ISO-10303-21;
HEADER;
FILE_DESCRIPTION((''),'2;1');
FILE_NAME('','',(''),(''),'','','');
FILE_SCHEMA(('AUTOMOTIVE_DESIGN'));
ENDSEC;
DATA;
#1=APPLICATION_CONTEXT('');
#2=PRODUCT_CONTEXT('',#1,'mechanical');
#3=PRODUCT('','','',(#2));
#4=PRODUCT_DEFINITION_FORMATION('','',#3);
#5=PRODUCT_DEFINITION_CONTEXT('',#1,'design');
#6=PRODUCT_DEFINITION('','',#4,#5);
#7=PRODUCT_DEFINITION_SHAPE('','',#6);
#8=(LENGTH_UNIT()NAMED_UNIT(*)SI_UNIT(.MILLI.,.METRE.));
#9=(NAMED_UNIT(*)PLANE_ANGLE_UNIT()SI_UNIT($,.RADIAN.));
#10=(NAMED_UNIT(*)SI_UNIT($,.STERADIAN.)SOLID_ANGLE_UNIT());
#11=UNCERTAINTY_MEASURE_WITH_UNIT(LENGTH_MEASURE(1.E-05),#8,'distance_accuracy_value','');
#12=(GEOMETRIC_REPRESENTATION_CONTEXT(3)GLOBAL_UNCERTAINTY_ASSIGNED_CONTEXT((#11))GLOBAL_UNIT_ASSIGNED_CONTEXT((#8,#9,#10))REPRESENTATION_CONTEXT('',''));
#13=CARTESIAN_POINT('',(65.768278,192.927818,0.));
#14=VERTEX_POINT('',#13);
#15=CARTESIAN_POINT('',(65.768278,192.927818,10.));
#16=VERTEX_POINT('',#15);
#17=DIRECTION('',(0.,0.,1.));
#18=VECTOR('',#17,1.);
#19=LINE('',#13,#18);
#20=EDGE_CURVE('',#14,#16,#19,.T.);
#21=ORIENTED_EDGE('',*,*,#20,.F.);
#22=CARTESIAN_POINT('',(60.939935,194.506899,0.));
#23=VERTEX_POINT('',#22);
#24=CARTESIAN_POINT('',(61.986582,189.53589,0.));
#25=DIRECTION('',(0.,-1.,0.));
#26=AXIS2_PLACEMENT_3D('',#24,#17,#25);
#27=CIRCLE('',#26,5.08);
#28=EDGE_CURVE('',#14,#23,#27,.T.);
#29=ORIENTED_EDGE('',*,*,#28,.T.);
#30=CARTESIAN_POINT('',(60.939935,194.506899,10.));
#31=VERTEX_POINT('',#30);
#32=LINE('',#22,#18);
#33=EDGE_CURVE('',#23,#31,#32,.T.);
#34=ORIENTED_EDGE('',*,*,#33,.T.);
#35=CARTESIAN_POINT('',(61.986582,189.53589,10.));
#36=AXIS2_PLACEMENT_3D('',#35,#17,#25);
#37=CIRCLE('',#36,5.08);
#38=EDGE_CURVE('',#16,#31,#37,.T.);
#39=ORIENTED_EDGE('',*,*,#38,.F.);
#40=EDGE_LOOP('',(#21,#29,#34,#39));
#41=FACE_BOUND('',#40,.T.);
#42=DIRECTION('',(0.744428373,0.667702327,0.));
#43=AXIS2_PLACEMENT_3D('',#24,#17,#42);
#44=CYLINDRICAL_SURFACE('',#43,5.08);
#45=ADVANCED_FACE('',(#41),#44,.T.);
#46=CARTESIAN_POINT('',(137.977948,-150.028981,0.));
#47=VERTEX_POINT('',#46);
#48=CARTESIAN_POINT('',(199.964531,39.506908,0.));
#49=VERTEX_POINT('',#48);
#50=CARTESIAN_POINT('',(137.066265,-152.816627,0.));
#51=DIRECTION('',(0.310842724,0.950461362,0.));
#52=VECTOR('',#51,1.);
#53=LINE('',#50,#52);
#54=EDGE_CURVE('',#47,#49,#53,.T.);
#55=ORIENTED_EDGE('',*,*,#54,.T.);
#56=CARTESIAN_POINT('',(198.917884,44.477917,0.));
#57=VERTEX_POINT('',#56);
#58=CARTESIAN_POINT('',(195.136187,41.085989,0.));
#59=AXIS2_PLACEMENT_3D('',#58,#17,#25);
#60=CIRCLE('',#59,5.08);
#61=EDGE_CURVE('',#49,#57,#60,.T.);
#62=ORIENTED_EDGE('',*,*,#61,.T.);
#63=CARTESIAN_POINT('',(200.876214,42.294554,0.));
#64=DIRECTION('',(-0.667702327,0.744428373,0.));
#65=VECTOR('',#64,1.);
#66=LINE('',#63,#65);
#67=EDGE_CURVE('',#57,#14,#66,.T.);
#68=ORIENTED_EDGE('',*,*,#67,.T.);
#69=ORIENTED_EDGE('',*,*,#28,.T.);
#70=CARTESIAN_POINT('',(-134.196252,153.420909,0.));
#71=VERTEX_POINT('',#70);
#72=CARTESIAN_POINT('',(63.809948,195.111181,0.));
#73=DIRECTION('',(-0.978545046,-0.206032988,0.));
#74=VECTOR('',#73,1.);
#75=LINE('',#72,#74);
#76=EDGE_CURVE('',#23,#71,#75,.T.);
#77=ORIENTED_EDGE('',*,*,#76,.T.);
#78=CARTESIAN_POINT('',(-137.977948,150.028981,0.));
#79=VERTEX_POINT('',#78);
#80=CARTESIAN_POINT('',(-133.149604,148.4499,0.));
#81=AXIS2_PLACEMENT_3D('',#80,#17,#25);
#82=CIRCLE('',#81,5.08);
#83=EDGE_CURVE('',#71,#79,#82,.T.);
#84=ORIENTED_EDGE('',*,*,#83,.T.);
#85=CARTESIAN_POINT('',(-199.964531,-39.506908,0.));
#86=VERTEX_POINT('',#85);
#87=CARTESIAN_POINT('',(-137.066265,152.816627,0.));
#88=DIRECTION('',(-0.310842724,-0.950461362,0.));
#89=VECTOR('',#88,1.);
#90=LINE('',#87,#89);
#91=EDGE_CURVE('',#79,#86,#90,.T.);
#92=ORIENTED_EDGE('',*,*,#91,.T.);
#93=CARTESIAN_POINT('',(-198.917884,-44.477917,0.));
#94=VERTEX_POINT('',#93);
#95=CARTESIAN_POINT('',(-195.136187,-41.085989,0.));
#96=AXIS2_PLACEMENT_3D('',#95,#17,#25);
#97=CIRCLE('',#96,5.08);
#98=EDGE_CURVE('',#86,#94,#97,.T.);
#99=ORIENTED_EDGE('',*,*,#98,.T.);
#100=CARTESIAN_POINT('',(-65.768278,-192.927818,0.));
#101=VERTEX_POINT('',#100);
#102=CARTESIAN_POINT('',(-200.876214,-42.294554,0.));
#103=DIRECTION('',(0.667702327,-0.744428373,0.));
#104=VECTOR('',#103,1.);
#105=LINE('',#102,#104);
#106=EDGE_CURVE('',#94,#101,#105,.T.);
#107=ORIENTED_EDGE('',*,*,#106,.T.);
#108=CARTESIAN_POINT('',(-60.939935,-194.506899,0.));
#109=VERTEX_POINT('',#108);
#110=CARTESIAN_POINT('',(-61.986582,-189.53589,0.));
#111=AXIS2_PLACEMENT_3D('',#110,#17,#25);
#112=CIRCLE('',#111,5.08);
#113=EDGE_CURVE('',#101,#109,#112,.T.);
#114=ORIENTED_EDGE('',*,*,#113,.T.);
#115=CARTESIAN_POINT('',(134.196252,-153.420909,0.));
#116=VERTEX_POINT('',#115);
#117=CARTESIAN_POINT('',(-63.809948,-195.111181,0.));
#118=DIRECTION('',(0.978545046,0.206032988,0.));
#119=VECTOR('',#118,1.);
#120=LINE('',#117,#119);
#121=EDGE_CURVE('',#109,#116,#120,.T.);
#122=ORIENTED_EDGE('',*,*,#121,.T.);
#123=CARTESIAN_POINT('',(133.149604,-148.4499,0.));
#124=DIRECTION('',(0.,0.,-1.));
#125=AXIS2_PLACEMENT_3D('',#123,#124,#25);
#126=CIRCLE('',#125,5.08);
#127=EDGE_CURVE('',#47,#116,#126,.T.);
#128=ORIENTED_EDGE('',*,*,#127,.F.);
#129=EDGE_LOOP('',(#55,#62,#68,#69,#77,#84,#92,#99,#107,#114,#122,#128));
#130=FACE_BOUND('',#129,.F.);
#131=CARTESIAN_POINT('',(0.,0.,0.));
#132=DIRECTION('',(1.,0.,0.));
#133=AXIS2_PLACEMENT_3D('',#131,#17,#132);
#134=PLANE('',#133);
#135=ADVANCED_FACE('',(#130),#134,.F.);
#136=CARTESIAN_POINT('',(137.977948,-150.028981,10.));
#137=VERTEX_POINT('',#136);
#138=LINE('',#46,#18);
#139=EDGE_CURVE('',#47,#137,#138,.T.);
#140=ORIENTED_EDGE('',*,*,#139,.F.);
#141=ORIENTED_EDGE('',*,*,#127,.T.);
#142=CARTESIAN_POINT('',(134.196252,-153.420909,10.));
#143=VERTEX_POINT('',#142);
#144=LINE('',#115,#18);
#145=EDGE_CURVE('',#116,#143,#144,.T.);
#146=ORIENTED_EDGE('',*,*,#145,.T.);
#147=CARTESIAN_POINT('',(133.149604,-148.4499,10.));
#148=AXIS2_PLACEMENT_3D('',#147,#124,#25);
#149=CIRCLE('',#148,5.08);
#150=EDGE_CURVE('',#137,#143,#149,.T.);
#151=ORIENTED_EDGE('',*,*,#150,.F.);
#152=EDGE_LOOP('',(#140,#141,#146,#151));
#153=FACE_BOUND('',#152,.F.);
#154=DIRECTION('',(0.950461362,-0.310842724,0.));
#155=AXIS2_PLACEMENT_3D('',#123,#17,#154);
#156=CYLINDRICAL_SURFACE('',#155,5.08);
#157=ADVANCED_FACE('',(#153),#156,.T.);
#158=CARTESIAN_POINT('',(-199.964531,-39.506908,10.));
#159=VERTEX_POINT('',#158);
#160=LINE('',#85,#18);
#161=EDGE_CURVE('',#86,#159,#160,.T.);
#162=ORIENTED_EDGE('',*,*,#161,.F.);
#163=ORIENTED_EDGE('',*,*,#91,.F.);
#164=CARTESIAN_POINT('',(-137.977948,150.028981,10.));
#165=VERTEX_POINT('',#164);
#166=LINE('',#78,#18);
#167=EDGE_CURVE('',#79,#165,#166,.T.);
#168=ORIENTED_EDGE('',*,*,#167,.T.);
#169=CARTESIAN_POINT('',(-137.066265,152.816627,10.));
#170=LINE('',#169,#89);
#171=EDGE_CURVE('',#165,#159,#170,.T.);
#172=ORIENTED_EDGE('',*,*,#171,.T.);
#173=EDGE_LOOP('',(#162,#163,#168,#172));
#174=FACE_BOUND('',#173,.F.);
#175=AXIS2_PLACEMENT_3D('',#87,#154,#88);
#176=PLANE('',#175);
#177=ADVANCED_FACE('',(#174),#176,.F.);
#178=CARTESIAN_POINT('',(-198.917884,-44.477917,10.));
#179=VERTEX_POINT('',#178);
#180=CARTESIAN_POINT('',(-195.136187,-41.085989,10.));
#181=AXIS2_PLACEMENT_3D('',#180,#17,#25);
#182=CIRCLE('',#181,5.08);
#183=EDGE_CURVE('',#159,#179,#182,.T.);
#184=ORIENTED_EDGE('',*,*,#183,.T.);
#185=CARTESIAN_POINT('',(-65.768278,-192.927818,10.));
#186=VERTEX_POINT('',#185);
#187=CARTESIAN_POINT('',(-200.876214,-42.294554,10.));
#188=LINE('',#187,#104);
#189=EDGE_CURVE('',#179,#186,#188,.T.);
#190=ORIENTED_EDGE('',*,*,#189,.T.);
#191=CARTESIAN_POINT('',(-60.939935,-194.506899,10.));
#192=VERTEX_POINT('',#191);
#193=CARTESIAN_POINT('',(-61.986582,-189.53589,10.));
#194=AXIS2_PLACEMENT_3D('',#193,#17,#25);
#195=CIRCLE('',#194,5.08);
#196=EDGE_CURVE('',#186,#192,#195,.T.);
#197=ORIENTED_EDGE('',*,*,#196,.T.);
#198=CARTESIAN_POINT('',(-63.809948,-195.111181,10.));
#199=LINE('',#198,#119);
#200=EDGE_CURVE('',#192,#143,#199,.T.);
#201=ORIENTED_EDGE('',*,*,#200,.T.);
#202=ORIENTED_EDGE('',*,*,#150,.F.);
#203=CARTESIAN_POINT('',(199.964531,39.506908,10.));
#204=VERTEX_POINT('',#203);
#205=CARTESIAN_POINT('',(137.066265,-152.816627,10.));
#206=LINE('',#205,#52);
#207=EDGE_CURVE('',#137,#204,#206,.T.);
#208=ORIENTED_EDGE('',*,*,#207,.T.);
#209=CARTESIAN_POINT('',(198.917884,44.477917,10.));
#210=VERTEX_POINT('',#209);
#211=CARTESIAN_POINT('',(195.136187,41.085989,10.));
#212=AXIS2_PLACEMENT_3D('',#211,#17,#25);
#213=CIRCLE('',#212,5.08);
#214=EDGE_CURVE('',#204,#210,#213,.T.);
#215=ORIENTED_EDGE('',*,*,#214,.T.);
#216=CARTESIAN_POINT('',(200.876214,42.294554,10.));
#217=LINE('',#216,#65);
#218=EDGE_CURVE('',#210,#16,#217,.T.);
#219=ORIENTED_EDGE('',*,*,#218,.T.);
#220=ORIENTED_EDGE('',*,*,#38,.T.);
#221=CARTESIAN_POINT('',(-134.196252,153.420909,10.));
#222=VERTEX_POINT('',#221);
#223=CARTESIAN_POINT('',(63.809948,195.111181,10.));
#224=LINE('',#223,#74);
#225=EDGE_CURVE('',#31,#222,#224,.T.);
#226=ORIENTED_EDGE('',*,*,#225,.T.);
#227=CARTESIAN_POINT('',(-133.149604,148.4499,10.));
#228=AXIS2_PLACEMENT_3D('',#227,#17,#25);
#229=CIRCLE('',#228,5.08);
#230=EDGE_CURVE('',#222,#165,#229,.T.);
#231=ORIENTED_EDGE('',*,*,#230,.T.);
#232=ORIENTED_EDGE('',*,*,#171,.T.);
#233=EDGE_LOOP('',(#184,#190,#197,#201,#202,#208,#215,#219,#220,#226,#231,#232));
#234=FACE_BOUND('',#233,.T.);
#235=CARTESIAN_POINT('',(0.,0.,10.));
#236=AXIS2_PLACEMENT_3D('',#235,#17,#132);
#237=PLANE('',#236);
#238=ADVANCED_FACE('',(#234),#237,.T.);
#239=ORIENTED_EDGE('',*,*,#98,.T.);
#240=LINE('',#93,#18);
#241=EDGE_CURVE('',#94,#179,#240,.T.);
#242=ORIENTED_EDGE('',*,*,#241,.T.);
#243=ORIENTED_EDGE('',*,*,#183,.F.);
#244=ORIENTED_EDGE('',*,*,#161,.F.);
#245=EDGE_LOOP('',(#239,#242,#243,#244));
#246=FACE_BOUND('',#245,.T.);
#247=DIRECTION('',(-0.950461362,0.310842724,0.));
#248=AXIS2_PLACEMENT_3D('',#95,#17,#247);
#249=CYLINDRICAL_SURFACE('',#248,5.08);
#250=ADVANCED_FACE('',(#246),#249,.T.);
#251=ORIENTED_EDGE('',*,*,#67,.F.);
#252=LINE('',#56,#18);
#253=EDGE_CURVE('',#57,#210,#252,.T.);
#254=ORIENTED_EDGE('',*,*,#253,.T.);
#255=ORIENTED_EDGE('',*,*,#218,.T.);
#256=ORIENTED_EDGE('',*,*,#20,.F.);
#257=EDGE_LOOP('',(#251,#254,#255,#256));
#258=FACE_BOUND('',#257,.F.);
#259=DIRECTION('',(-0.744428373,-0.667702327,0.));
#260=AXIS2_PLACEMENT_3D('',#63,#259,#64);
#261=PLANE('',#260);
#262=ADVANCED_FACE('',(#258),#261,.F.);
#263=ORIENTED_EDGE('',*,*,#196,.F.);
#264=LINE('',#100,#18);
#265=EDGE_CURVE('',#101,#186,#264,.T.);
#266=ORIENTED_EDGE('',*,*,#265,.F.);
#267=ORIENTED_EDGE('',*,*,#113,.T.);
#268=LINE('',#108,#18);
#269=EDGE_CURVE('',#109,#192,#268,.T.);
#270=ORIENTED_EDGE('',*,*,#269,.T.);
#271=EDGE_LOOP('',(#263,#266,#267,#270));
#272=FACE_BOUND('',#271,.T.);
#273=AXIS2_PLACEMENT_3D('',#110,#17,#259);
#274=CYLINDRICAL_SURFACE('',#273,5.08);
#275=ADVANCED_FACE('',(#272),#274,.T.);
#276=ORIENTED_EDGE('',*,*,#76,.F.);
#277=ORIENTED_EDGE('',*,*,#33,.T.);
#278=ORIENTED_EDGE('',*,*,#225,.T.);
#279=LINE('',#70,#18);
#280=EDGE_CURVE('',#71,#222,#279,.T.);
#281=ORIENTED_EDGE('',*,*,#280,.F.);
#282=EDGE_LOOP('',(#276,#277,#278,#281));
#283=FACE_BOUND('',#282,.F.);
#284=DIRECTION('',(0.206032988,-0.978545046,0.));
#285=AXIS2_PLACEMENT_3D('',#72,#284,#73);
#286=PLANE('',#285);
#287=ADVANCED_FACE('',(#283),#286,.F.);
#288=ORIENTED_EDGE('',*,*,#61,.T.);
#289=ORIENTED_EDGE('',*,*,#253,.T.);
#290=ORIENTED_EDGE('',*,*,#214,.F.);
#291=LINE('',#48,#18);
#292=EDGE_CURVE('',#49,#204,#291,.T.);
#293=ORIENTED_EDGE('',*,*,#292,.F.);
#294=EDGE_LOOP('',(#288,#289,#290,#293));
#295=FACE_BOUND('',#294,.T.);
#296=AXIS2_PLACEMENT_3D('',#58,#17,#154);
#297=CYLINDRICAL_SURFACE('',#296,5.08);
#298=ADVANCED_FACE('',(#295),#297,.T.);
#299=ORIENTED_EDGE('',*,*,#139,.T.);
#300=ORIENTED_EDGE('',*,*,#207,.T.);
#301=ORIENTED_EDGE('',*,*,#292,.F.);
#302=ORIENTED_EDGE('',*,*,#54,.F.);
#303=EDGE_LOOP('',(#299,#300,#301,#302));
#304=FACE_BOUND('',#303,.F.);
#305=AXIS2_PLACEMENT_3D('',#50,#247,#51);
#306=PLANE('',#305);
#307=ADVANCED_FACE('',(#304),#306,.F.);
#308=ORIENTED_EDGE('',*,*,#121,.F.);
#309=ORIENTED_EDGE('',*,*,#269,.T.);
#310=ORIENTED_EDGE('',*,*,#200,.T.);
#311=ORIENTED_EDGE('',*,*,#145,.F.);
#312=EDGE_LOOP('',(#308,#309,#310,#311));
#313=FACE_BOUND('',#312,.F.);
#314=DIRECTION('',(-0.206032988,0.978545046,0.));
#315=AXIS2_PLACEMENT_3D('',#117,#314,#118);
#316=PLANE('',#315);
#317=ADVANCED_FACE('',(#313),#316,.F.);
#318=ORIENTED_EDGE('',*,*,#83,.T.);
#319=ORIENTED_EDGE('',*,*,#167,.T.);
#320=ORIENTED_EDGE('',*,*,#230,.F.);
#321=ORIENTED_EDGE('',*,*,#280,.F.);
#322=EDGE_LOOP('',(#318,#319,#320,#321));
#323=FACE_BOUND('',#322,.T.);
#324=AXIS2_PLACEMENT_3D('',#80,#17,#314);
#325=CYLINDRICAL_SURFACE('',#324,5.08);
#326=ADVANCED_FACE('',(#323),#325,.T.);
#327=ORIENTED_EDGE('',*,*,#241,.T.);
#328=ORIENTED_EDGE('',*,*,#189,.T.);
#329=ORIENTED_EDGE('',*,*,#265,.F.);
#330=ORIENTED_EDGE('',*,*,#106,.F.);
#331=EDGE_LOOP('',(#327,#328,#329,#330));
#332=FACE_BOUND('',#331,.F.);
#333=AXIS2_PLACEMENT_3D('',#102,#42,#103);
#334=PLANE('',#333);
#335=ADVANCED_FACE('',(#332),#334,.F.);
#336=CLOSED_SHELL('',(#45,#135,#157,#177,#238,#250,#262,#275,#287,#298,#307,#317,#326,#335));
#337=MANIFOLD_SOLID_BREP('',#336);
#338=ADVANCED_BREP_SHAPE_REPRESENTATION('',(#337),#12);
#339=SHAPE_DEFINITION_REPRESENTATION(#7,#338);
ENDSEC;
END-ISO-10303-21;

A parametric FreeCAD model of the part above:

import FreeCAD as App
import Part
import Sketcher
Q = App.Units.Quantity


def edges_at(feature, points):
    """Names of the edges that pass closest to the given points."""
    edges = feature.Shape.Edges
    near = lambda p: min(range(len(edges)), key=lambda i: edges[i].distToShape(Part.Vertex(*p))[0])
    return sorted({f"Edge{near(p) + 1}" for p in points})


def add_polygon(sketch, points):
    """Adds a closed chain of lines whose ends are joined by coincident constraints."""
    first, n = sketch.GeometryCount, len(points)
    for a, b in zip(points, points[1:] + points[:1]):
        sketch.addGeometry(Part.LineSegment(App.Vector(*a, 0), App.Vector(*b, 0)), False)
    for i in range(n):
        sketch.addConstraint(Sketcher.Constraint("Coincident", first + i, 2, first + (i + 1) % n, 1))

doc = App.newDocument("Part")
body = doc.addObject("PartDesign::Body", "Body")

sketch1 = body.newObject("Sketcher::SketchObject", "Sketch")
sketch1.AttachmentSupport = (doc.getObject("XY_Plane"), [""])
sketch1.MapMode = "FlatFace"
add_polygon(sketch1, [(137, -153), (201, 42), (64, 195), (-137, 153), (-201, -42), (-64, -195)])
sketch1.addConstraint([
    Sketcher.Constraint("Symmetric", 0, 2, 3, 2, -1, 1),
    Sketcher.Constraint("Symmetric", 1, 2, 4, 2, -1, 1),
    Sketcher.Constraint("Symmetric", 2, 2, 5, 2, -1, 1),
    Sketcher.Constraint("Equal", 0, 1),
    Sketcher.Constraint("Equal", 1, 2),
    Sketcher.Constraint("DistanceY", -1, 1, 1, 2, Q("195.111181 mm")),
    Sketcher.Constraint("DistanceX", 2, 2, 0, 2, Q("337.942479 mm")),
    Sketcher.Constraint("DistanceX", 3, 2, 2, 2, Q("63.809949 mm")),
    Sketcher.Constraint("DistanceY", 3, 2, 2, 2, Q("195.111181 mm")),
])
pad1 = body.newObject("PartDesign::Pad", "Pad")
pad1.Profile = sketch1
pad1.Length = 10
doc.recompute()

fillet = body.newObject("PartDesign::Fillet", "Fillet")
fillet.Base = (pad1, edges_at(pad1, [
    (-63.81, -195.111, 5),
    (137.066, -152.817, 5),
    (200.876, 42.295, 5),
    (-200.876, -42.295, 5),
    (63.81, 195.111, 5),
    (-137.066, 152.817, 5),
]))
fillet.Radius = 5.08

doc.recompute()
